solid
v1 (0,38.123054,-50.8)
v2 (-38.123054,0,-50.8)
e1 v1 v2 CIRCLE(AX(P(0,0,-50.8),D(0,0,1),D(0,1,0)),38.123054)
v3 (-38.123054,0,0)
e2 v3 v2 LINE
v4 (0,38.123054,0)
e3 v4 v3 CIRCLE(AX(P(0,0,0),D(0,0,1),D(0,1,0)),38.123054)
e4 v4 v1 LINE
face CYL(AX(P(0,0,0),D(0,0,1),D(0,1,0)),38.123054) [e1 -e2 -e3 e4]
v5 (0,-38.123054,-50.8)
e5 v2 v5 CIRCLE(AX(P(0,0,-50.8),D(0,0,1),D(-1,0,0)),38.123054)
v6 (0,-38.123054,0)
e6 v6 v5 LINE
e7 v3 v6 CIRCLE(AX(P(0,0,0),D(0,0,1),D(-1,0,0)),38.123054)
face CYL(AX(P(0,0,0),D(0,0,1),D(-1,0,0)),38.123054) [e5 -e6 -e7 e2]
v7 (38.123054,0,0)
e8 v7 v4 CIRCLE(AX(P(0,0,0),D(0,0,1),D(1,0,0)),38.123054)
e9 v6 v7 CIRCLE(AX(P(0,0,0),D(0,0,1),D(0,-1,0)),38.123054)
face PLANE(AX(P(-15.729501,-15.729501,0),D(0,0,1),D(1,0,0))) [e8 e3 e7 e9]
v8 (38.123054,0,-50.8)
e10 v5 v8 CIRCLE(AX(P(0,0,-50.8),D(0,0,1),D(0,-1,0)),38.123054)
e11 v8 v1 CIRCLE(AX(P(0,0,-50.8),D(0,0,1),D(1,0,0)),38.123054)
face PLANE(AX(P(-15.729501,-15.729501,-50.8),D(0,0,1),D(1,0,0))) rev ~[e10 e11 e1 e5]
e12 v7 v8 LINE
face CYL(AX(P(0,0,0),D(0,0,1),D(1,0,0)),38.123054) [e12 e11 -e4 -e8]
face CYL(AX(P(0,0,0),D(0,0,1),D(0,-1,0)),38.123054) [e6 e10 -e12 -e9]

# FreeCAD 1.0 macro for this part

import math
import FreeCAD as App
import Part
import Sketcher

V = App.Vector

doc = App.newDocument("Part")
params = doc.addObject("Spreadsheet::Sheet", "Params")
for row, (alias, value) in enumerate([
    ("pad1_length", "2 in"),
], start=1):
    params.set(f"A{row}", alias)
    params.set(f"B{row}", "=" + value)
    params.setAlias(f"B{row}", alias)

body = doc.addObject("PartDesign::Body", "Body")

sketch1 = doc.addObject("Sketcher::SketchObject", "Sketch")
body.addObject(sketch1)
sketch1.AttachmentSupport = (doc.XY_Plane, [""])
sketch1.MapMode = "FlatFace"
sketch1.addGeometry(Part.ArcOfCircle(Part.Circle(V(0, 0, 0), V(0, 0, 1), 38), math.radians(90), math.radians(180)), False)
sketch1.addGeometry(Part.ArcOfCircle(Part.Circle(V(0, 0, 0), V(0, 0, 1), 38), math.radians(-180), math.radians(-90)), False)
sketch1.addGeometry(Part.ArcOfCircle(Part.Circle(V(0, 0, 0), V(0, 0, 1), 38), math.radians(-90), math.radians(0)), False)
sketch1.addGeometry(Part.ArcOfCircle(Part.Circle(V(0, 0, 0), V(0, 0, 1), 38), math.radians(0), math.radians(90)), False)
sketch1.addConstraint(Sketcher.Constraint("Tangent", 0, 2, 1, 1))
sketch1.addConstraint(Sketcher.Constraint("Tangent", 1, 2, 2, 1))
sketch1.addConstraint(Sketcher.Constraint("Tangent", 2, 2, 3, 1))
sketch1.addConstraint(Sketcher.Constraint("Tangent", 3, 2, 0, 1))
sketch1.addConstraint(Sketcher.Constraint("Coincident", 0, 3, -1, 1))
sketch1.addConstraint(Sketcher.Constraint("Equal", 0, 1))
sketch1.addConstraint(Sketcher.Constraint("PointOnObject", 0, 2, -1))
sketch1.addConstraint(Sketcher.Constraint("PointOnObject", 1, 2, -2))
sketch1.addConstraint(Sketcher.Constraint("PointOnObject", 2, 2, -1))
sketch1.addConstraint(Sketcher.Constraint("PointOnObject", 3, 2, -2))
sketch1.addConstraint(Sketcher.Constraint("Radius", 0, 38.123054))
pad1 = doc.addObject("PartDesign::Pad", "Pad")
body.addObject(pad1)
pad1.Profile = sketch1
pad1.setExpression("Length", "Params.pad1_length")
pad1.Reversed = True

doc.recompute()
